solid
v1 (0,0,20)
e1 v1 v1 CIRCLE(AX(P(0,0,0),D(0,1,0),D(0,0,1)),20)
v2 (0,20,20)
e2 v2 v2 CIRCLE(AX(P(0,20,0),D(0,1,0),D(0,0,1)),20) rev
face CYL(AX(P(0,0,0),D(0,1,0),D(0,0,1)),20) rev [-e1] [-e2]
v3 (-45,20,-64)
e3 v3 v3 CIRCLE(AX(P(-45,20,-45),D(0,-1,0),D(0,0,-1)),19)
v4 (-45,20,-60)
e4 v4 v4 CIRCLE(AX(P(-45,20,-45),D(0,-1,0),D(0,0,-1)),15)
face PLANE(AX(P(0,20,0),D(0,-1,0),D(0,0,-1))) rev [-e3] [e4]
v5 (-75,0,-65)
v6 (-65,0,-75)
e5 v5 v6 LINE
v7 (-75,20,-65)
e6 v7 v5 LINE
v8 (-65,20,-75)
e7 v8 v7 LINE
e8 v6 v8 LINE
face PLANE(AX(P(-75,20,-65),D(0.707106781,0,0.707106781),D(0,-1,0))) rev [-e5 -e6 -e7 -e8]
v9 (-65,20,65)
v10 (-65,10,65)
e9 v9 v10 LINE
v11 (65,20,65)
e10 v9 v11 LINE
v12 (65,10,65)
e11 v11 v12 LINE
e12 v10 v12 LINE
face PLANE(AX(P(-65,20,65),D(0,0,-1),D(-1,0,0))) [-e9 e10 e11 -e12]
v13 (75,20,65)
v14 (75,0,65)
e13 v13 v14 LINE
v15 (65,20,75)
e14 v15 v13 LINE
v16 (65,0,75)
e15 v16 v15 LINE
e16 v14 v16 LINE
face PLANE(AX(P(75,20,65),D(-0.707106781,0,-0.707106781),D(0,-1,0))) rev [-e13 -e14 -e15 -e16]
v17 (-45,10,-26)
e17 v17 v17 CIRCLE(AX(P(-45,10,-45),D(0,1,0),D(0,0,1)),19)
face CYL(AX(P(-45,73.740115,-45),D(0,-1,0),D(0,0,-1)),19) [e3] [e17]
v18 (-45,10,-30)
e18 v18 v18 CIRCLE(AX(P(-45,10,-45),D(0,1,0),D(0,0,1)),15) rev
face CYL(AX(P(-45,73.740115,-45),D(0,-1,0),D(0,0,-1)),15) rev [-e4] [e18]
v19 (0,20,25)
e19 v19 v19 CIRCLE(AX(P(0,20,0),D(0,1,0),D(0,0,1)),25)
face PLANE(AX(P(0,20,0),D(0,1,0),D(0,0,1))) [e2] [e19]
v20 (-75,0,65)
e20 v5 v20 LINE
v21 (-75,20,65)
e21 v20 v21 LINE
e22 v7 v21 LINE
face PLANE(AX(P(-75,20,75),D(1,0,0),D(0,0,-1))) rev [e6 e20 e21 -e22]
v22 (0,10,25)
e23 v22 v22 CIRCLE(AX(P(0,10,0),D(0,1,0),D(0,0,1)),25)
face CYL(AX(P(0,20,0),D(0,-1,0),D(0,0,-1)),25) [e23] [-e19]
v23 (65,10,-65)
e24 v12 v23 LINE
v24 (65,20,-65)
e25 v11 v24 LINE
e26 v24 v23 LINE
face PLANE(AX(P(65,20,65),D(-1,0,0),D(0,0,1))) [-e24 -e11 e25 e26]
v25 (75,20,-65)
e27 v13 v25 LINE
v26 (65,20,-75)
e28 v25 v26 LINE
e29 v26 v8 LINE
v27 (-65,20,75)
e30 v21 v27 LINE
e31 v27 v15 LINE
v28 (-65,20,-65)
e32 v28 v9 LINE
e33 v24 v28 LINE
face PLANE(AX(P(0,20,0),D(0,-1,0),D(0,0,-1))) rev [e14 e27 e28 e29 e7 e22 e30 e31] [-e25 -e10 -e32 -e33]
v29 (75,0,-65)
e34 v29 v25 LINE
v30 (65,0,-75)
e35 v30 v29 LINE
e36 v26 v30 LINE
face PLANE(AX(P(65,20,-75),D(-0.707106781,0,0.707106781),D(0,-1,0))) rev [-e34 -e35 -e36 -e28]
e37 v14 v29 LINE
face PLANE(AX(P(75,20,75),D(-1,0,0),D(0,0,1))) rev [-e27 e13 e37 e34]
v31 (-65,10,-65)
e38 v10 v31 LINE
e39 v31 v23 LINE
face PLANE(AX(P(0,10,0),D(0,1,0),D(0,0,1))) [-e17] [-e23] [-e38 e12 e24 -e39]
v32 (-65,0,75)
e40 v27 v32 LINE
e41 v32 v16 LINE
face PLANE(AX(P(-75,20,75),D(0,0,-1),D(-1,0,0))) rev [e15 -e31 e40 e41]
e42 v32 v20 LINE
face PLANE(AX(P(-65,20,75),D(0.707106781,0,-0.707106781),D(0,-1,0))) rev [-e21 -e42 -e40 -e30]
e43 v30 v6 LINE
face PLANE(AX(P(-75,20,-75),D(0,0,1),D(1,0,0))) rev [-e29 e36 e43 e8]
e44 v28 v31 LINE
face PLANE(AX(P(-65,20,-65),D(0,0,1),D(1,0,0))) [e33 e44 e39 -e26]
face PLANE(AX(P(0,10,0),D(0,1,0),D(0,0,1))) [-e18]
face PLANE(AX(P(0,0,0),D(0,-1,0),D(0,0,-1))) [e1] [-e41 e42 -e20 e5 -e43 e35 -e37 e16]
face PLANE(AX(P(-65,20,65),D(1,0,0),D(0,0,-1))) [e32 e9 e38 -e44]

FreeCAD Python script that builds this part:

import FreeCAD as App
import Part
import Sketcher
Q = App.Units.Quantity


def edges_at(feature, points):
    """Names of the edges that pass closest to the given points."""
    edges = feature.Shape.Edges
    near = lambda p: min(range(len(edges)), key=lambda i: edges[i].distToShape(Part.Vertex(*p))[0])
    return sorted({f"Edge{near(p) + 1}" for p in points})


def add_polygon(sketch, points):
    """Adds a closed chain of lines whose ends are joined by coincident constraints."""
    first, n = sketch.GeometryCount, len(points)
    for a, b in zip(points, points[1:] + points[:1]):
        sketch.addGeometry(Part.LineSegment(App.Vector(*a, 0), App.Vector(*b, 0)), False)
    for i in range(n):
        sketch.addConstraint(Sketcher.Constraint("Coincident", first + i, 2, first + (i + 1) % n, 1))

doc = App.newDocument("Part")
params = doc.addObject("Spreadsheet::Sheet", "Params")
for row, (alias, value) in enumerate([
    ("sketch1_width", "150 mm"),
    ("sketch1_width2", "130 mm"),
    ("pad1_length", "20 mm"),
    ("sketch2_width", "130 mm"),
    ("pad2_length", "10 mm"),
    ("chamfer_size", "10 mm"),
    ("sketch3_diameter", "40 mm"),
    ("pocket1_length", "10 mm"),
    ("sketch4_diameter", "50 mm"),
    ("sketch4_diameter2", "40 mm"),
    ("pad3_length", "10 mm"),
    ("sketch5_diameter", "38 mm"),
    ("sketch5_diameter2", "30 mm"),
    ("pad4_length", "10 mm"),
], start=1):
    params.set(f"A{row}", alias)
    params.set(f"B{row}", "=" + value)
    params.setAlias(f"B{row}", alias)

body = doc.addObject("PartDesign::Body", "Body")

# Sketch on XZ plane
sketch1 = doc.addObject("Sketcher::SketchObject", "Sketch")
body.addObject(sketch1)
sketch1.AttachmentSupport = (doc.XZ_Plane, [""])
sketch1.MapMode = "FlatFace"
add_polygon(sketch1, [(-75, -75), (-75, 75), (75, 75), (75, -75)])  # lines 0-3
add_polygon(sketch1, [(65, 65), (-65, 65), (-65, -65), (65, -65)])  # lines 4-7
sketch1.addConstraint([
    Sketcher.Constraint("Vertical", 0),
    Sketcher.Constraint("Horizontal", 1),
    Sketcher.Constraint("Vertical", 2),
    Sketcher.Constraint("Horizontal", 3),
    Sketcher.Constraint("Horizontal", 4),
    Sketcher.Constraint("Vertical", 5),
    Sketcher.Constraint("Horizontal", 6),
    Sketcher.Constraint("Vertical", 7),
    Sketcher.Constraint("Symmetric", 0, 2, 2, 2, -1, 1),
    Sketcher.Constraint("Symmetric", 4, 2, 6, 2, -1, 1),
    Sketcher.Constraint("Equal", 3, 0),
    Sketcher.Constraint("Equal", 6, 5),
    Sketcher.Constraint("DistanceX", 1, 1, 1, 2, Q("150 mm")),
    Sketcher.Constraint("DistanceX", 4, 2, 4, 1, Q("130 mm")),
])
sketch1.setExpression("Constraints[20]", "Params.sketch1_width")
sketch1.setExpression("Constraints[21]", "Params.sketch1_width2")
pad1 = doc.addObject("PartDesign::Pad", "Pad")
body.addObject(pad1)
pad1.Profile = sketch1
pad1.setExpression("Length", "Params.pad1_length")
pad1.Reversed = True

# Sketch on XZ plane
sketch2 = doc.addObject("Sketcher::SketchObject", "Sketch001")
body.addObject(sketch2)
sketch2.AttachmentSupport = (doc.XZ_Plane, [""])
sketch2.MapMode = "FlatFace"
add_polygon(sketch2, [(-65, -65), (-65, 65), (65, 65), (65, -65)])  # lines 0-3
sketch2.addConstraint([
    Sketcher.Constraint("Vertical", 0),
    Sketcher.Constraint("Horizontal", 1),
    Sketcher.Constraint("Vertical", 2),
    Sketcher.Constraint("Horizontal", 3),
    Sketcher.Constraint("Symmetric", 0, 2, 2, 2, -1, 1),
    Sketcher.Constraint("Equal", 3, 0),
    Sketcher.Constraint("DistanceX", 1, 1, 1, 2, Q("130 mm")),
])
sketch2.setExpression("Constraints[10]", "Params.sketch2_width")
pad2 = doc.addObject("PartDesign::Pad", "Pad001")
body.addObject(pad2)
pad2.Profile = sketch2
pad2.setExpression("Length", "Params.pad2_length")
pad2.Reversed = True
doc.recompute()

chamfer = doc.addObject("PartDesign::Chamfer", "Chamfer")
body.addObject(chamfer)
chamfer.Base = (pad2, edges_at(pad2, [
    (75, 10, 75),
    (-75, 10, 75),
    (-75, 10, -75),
    (75, 10, -75),
]))
chamfer.setExpression("Size", "Params.chamfer_size")

# Sketch on XZ plane
sketch3 = doc.addObject("Sketcher::SketchObject", "Sketch002")
body.addObject(sketch3)
sketch3.AttachmentSupport = (doc.XZ_Plane, [""])
sketch3.MapMode = "FlatFace"
sketch3.AttachmentOffset = App.Placement(App.Vector(0, 0, -10), App.Rotation())
sketch3.addGeometry(Part.Circle(App.Vector(0, 0, 0), App.Vector(0, 0, 1), 20), False)
sketch3.addConstraint([
    Sketcher.Constraint("Coincident", 0, 3, -1, 1),
    Sketcher.Constraint("Diameter", 0, Q("40 mm")),
])
sketch3.setExpression("Constraints[1]", "Params.sketch3_diameter")
pocket1 = doc.addObject("PartDesign::Pocket", "Pocket")
body.addObject(pocket1)
pocket1.Profile = sketch3
pocket1.setExpression("Length", "Params.pocket1_length")
pocket1.Reversed = True

# Sketch on XZ plane
sketch4 = doc.addObject("Sketcher::SketchObject", "Sketch003")
body.addObject(sketch4)
sketch4.AttachmentSupport = (doc.XZ_Plane, [""])
sketch4.MapMode = "FlatFace"
sketch4.AttachmentOffset = App.Placement(App.Vector(0, 0, -20), App.Rotation())
sketch4.addGeometry([
    Part.Circle(App.Vector(0, 0, 0), App.Vector(0, 0, 1), 25),
    Part.Circle(App.Vector(0, 0, 0), App.Vector(0, 0, 1), 20),
], False)
sketch4.addConstraint([
    Sketcher.Constraint("Coincident", 0, 3, -1, 1),
    Sketcher.Constraint("Coincident", 1, 3, -1, 1),
    Sketcher.Constraint("Diameter", 0, Q("50 mm")),
    Sketcher.Constraint("Diameter", 1, Q("40 mm")),
])
sketch4.setExpression("Constraints[2]", "Params.sketch4_diameter")
sketch4.setExpression("Constraints[3]", "Params.sketch4_diameter2")
pad3 = doc.addObject("PartDesign::Pad", "Pad002")
body.addObject(pad3)
pad3.Profile = sketch4
pad3.setExpression("Length", "Params.pad3_length")

# Sketch on XZ plane
sketch5 = doc.addObject("Sketcher::SketchObject", "Sketch004")
body.addObject(sketch5)
sketch5.AttachmentSupport = (doc.XZ_Plane, [""])
sketch5.MapMode = "FlatFace"
sketch5.AttachmentOffset = App.Placement(App.Vector(0, 0, -10), App.Rotation())
sketch5.addGeometry([
    Part.Circle(App.Vector(-45, -45, 0), App.Vector(0, 0, 1), 19),
    Part.Circle(App.Vector(-45, -45, 0), App.Vector(0, 0, 1), 15),
], False)
sketch5.addConstraint([
    Sketcher.Constraint("Coincident", 1, 3, 0, 3),
    Sketcher.Constraint("Diameter", 0, Q("38 mm")),
    Sketcher.Constraint("Diameter", 1, Q("30 mm")),
    Sketcher.Constraint("DistanceX", 0, 3, -1, 1, Q("45 mm")),
    Sketcher.Constraint("DistanceY", 0, 3, -1, 1, Q("45 mm")),
])
sketch5.setExpression("Constraints[1]", "Params.sketch5_diameter")
sketch5.setExpression("Constraints[2]", "Params.sketch5_diameter2")
pad4 = doc.addObject("PartDesign::Pad", "Pad003")
body.addObject(pad4)
pad4.Profile = sketch5
pad4.setExpression("Length", "Params.pad4_length")
pad4.Reversed = True

doc.recompute()
